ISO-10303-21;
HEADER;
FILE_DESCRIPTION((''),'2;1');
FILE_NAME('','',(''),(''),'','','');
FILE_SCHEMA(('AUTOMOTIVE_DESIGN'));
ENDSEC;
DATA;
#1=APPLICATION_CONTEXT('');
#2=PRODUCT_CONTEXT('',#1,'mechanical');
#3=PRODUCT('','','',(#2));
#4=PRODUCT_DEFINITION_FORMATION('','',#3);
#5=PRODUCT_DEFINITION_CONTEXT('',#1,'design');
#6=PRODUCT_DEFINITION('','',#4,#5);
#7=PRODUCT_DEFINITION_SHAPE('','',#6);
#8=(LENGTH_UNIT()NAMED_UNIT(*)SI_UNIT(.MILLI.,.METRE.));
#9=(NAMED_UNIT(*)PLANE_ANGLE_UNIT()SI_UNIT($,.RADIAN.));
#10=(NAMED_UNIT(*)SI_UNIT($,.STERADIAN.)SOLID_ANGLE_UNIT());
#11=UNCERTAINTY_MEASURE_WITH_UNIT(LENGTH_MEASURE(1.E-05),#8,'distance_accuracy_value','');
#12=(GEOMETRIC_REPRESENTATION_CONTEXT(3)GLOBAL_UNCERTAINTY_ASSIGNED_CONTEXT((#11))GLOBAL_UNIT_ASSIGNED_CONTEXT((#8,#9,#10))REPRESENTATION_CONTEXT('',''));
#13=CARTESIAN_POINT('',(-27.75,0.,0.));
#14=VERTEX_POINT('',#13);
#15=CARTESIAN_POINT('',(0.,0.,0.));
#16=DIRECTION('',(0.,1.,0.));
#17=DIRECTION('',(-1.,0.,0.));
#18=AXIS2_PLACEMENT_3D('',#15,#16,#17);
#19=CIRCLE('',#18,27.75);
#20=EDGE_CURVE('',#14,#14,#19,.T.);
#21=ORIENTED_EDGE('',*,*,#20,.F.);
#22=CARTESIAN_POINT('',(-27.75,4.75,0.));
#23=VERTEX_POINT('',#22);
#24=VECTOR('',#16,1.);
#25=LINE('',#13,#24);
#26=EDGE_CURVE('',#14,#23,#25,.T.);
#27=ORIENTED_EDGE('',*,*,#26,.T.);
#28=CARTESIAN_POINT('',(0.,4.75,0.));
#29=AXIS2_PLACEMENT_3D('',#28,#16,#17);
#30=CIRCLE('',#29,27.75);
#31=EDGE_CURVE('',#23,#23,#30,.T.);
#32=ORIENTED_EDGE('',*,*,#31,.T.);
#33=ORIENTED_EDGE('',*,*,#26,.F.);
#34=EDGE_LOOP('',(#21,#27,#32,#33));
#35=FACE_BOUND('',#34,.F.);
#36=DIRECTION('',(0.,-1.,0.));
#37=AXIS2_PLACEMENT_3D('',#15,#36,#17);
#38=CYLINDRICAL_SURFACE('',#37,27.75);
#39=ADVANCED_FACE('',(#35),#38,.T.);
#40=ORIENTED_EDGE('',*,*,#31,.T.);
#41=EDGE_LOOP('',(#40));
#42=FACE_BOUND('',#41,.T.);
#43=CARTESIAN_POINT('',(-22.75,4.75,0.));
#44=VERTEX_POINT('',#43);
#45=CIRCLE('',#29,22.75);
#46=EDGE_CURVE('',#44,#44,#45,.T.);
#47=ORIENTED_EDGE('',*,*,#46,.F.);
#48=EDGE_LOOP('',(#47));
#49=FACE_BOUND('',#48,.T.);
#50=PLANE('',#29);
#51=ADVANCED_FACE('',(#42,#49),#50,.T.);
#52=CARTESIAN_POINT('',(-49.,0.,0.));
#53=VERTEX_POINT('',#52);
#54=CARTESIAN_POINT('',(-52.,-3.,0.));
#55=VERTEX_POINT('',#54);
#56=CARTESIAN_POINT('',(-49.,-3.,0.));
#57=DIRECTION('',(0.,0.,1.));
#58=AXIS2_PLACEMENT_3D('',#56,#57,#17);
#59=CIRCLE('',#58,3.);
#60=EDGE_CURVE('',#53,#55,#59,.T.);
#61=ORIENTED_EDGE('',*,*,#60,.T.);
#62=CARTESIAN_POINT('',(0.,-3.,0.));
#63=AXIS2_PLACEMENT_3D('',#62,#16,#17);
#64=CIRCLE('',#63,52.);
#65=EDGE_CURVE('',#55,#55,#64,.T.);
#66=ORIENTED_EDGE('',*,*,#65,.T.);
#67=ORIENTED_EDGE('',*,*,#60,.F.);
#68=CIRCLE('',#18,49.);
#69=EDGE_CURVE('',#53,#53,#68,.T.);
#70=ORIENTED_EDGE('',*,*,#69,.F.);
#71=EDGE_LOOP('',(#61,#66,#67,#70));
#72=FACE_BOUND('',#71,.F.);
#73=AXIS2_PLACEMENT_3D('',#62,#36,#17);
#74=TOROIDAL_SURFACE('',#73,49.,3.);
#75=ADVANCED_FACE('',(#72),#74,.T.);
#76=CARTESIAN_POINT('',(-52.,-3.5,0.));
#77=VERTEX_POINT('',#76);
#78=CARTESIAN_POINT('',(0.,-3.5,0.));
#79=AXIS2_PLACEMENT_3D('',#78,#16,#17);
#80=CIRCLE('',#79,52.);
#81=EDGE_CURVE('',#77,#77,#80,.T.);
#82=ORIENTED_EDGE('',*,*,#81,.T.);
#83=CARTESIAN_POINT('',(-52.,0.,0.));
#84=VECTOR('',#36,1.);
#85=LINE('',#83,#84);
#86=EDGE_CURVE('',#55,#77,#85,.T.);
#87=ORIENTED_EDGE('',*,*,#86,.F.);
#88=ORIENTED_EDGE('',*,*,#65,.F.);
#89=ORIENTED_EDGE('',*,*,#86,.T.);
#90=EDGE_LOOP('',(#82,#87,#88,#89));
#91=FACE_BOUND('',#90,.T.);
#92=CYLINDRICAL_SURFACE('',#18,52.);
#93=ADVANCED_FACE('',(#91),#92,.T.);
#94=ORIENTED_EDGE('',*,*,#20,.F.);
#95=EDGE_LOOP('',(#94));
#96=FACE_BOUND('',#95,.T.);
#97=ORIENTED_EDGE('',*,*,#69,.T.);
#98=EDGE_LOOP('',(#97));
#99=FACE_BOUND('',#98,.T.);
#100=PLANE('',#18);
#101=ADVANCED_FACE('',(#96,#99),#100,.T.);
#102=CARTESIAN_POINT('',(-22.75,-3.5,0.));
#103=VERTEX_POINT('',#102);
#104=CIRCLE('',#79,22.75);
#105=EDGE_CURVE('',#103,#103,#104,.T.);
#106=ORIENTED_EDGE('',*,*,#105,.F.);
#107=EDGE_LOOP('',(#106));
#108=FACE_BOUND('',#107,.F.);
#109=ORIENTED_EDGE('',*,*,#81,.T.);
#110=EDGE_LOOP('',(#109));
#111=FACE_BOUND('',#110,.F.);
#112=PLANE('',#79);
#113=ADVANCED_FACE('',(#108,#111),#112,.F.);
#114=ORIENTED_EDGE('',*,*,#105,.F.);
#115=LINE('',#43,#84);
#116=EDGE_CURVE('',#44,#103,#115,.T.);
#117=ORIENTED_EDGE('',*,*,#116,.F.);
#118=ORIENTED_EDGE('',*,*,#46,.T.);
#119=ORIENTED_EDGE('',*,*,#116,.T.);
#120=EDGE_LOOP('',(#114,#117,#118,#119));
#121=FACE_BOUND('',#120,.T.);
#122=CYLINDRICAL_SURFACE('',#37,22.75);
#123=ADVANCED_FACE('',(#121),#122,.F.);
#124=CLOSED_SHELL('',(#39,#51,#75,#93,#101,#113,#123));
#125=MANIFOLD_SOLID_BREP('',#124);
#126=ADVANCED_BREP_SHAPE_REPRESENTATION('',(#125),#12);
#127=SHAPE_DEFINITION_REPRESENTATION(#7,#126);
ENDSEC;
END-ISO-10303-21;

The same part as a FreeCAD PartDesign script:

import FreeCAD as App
import Part
import Sketcher
Q = App.Units.Quantity


def edges_at(feature, points):
    """Names of the edges that pass closest to the given points."""
    edges = feature.Shape.Edges
    near = lambda p: min(range(len(edges)), key=lambda i: edges[i].distToShape(Part.Vertex(*p))[0])
    return sorted({f"Edge{near(p) + 1}" for p in points})

doc = App.newDocument("Part")
body = doc.addObject("PartDesign::Body", "Body")

# Sketch on XZ plane
sketch1 = body.newObject("Sketcher::SketchObject", "Sketch")
sketch1.AttachmentSupport = (doc.getObject("XZ_Plane"), [""])
sketch1.MapMode = "FlatFace"
sketch1.addGeometry([
    Part.Circle(App.Vector(0, 0, 0), App.Vector(0, 0, 1), 27.75),
    Part.Circle(App.Vector(0, 0, 0), App.Vector(0, 0, 1), 22.75),
], False)
sketch1.addConstraint([
    Sketcher.Constraint("Coincident", 0, 3, -1, 1),
    Sketcher.Constraint("Coincident", 1, 3, -1, 1),
    Sketcher.Constraint("Diameter", 0, Q("55.5 mm")),
    Sketcher.Constraint("Diameter", 1, Q("45.5 mm")),
])
pad1 = body.newObject("PartDesign::Pad", "Pad")
pad1.Profile = sketch1
pad1.Length = 4.75
pad1.Reversed = True

# Sketch on XZ plane
sketch2 = body.newObject("Sketcher::SketchObject", "Sketch001")
sketch2.AttachmentSupport = (doc.getObject("XZ_Plane"), [""])
sketch2.MapMode = "FlatFace"
sketch2.addGeometry([
    Part.Circle(App.Vector(0, 0, 0), App.Vector(0, 0, 1), 52),
    Part.Circle(App.Vector(0, 0, 0), App.Vector(0, 0, 1), 22.75),
], False)
sketch2.addConstraint([
    Sketcher.Constraint("Coincident", 0, 3, -1, 1),
    Sketcher.Constraint("Coincident", 1, 3, -1, 1),
    Sketcher.Constraint("Diameter", 0, Q("104 mm")),
    Sketcher.Constraint("Diameter", 1, Q("45.5 mm")),
])
pad2 = body.newObject("PartDesign::Pad", "Pad001")
pad2.Profile = sketch2
pad2.Length = 3.5
doc.recompute()

fillet = body.newObject("PartDesign::Fillet", "Fillet")
fillet.Base = (pad2, edges_at(pad2, [(52, 0, 0)]))
fillet.Radius = 3

doc.recompute()
